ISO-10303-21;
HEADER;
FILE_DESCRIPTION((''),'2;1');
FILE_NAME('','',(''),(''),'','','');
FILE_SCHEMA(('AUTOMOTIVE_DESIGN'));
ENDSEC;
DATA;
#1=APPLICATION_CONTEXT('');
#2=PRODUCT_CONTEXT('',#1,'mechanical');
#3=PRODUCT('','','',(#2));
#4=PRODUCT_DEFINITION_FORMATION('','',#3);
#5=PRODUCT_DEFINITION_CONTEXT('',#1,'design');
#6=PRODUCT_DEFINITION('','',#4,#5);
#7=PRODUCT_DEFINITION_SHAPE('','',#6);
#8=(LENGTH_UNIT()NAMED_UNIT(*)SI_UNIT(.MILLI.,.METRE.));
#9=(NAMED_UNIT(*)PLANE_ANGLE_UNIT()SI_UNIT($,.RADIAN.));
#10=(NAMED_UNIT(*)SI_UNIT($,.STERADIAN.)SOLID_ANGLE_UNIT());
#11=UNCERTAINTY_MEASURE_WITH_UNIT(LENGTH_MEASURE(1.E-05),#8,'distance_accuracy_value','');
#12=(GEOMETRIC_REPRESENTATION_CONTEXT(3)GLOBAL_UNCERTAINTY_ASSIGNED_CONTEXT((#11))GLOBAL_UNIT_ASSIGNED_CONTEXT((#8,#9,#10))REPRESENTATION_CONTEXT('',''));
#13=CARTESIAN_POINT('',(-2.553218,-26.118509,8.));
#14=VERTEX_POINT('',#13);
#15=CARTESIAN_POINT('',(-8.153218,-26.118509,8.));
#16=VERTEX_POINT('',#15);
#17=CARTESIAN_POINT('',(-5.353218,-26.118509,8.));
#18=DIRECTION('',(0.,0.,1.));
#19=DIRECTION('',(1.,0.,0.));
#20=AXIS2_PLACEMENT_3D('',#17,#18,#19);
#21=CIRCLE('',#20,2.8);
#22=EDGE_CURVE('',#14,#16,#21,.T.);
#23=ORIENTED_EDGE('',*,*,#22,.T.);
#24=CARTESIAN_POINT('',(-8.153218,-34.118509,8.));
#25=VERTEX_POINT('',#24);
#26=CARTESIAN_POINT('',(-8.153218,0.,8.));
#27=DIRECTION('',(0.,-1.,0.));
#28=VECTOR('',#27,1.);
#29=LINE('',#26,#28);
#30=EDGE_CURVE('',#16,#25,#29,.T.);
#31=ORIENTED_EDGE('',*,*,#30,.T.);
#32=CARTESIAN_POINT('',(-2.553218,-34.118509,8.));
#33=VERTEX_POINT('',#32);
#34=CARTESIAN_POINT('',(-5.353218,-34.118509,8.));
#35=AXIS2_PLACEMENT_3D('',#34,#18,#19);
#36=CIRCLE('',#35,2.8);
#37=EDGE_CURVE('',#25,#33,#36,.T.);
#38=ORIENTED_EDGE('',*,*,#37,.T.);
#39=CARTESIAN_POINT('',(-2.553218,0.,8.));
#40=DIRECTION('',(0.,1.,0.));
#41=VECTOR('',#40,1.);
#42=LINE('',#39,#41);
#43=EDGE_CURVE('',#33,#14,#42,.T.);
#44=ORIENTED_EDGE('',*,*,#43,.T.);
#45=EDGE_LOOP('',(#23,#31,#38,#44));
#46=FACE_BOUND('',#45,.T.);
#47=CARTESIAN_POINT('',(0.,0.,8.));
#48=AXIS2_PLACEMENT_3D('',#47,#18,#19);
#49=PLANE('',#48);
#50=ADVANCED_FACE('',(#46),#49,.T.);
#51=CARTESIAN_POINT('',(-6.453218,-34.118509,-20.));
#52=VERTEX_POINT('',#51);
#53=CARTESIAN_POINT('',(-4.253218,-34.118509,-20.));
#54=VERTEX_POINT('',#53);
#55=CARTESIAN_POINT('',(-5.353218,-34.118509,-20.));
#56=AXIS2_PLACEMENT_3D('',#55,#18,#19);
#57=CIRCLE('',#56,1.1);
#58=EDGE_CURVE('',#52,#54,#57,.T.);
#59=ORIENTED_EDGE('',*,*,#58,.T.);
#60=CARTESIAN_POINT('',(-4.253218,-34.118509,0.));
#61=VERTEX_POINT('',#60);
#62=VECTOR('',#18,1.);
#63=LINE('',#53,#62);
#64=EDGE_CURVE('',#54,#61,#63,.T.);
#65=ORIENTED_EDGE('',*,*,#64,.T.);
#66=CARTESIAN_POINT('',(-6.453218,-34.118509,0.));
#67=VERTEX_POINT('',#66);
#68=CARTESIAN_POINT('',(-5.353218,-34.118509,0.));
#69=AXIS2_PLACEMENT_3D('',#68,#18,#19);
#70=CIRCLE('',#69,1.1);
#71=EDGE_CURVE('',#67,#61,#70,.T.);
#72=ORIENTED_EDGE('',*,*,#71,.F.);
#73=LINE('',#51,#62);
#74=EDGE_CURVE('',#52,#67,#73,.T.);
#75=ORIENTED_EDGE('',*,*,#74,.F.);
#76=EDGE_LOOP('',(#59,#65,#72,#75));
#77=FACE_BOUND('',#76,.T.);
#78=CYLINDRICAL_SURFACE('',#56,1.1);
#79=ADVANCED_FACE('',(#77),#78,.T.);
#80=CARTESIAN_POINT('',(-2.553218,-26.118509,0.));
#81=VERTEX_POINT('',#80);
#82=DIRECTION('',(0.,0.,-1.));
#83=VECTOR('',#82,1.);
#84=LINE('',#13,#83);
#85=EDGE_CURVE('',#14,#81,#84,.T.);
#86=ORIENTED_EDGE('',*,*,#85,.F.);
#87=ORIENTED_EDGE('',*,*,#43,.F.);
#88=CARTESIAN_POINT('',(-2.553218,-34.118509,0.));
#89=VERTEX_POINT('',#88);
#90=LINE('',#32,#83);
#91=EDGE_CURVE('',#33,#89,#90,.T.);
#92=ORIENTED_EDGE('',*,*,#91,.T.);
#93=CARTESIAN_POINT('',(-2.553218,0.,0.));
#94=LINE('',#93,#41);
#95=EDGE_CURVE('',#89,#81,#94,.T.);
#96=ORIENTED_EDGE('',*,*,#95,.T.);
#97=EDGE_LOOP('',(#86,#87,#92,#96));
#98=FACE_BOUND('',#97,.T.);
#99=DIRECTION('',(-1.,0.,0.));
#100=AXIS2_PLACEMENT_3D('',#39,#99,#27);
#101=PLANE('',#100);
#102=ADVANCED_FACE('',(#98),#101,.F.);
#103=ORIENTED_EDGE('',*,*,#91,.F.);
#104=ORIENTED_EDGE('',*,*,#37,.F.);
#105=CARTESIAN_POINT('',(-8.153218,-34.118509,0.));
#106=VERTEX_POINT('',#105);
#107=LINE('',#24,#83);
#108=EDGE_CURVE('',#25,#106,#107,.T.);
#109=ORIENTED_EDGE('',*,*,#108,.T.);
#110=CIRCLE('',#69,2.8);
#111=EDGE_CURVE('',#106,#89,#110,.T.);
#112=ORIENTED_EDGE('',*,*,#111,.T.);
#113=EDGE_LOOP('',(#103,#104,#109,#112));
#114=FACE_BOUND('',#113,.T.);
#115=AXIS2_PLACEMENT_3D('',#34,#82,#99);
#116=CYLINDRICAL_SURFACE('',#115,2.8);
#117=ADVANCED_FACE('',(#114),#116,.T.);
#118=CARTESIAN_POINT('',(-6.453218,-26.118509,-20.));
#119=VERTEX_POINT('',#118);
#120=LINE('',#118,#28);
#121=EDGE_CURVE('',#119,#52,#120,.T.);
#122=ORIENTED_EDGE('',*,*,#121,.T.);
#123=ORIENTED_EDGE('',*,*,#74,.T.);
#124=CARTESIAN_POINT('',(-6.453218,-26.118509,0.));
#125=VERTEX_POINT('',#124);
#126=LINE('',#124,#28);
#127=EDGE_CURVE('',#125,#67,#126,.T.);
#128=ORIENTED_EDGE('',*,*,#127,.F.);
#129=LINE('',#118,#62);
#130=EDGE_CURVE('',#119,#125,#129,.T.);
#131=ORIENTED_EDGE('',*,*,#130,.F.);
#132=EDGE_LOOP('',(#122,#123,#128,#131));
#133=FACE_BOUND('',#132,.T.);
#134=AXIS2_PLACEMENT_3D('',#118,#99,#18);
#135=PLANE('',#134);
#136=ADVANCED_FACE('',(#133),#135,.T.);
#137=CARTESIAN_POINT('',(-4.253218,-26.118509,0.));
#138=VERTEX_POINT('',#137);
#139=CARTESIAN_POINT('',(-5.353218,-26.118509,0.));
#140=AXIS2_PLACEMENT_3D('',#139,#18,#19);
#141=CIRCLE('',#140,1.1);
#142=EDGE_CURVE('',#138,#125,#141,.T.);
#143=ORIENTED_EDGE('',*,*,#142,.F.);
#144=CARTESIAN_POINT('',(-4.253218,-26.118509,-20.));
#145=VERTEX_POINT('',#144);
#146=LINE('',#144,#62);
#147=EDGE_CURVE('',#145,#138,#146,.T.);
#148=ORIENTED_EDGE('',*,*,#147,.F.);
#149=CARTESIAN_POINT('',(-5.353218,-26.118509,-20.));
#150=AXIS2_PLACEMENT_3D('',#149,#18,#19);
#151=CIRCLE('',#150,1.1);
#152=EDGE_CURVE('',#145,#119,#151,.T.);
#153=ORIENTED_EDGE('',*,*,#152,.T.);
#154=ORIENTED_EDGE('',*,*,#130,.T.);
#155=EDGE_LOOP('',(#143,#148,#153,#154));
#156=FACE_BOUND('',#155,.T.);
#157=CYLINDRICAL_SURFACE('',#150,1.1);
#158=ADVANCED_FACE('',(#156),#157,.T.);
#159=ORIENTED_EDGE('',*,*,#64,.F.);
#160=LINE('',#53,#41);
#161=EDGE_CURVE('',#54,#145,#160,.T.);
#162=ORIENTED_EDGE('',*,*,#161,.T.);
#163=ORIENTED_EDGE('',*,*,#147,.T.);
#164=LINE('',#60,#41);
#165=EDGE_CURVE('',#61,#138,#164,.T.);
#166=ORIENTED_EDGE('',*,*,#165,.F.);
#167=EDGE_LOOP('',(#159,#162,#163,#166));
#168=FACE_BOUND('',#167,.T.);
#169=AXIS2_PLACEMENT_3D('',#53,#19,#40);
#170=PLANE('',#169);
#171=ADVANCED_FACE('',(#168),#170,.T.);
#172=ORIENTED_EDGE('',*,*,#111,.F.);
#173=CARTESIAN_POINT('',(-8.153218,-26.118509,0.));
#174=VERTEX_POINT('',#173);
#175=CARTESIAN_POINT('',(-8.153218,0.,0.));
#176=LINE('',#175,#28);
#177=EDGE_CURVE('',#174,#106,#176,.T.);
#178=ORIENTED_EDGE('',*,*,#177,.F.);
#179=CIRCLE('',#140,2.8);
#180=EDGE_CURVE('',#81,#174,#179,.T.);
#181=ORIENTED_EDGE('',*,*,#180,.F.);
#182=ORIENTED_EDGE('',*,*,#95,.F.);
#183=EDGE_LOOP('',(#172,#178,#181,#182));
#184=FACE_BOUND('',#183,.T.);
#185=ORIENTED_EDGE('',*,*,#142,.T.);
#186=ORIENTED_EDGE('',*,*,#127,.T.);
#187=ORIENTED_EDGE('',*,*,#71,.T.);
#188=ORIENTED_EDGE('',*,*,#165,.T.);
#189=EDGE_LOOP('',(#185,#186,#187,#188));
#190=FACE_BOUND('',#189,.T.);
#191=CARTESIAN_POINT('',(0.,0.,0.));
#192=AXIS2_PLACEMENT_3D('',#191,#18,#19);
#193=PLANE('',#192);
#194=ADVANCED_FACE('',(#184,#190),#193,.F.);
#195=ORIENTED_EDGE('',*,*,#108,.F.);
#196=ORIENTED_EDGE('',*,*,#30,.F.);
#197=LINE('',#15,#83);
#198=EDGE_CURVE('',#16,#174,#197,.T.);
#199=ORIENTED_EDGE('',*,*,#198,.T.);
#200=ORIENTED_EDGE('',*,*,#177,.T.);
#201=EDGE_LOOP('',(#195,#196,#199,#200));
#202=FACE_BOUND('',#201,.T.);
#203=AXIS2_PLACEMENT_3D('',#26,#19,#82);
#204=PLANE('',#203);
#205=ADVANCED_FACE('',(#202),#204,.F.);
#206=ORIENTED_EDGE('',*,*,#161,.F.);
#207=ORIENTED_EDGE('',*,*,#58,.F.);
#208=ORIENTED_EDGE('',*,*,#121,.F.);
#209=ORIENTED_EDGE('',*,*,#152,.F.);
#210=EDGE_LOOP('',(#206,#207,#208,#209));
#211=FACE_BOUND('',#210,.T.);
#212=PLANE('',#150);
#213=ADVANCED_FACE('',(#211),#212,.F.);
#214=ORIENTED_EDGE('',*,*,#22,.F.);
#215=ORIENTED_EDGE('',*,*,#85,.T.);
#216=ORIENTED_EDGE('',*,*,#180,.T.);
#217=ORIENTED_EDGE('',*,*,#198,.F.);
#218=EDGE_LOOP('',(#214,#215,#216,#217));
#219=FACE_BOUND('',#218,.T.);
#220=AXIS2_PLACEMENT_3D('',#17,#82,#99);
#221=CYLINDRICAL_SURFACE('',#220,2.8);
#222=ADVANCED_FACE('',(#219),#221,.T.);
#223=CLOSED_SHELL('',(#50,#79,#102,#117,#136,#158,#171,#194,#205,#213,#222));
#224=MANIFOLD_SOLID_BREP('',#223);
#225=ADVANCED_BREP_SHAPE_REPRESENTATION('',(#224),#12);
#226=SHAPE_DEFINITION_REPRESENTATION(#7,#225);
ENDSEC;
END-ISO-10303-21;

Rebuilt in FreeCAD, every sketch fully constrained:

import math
import FreeCAD as App
import Part
import Sketcher
from FreeCAD import Vector
Q = App.Units.Quantity

doc = App.newDocument("Part")
body = doc.addObject("PartDesign::Body", "Body")

# Sketch on XY plane
sketch1 = body.newObject("Sketcher::SketchObject", "Sketch")
sketch1.AttachmentSupport = (doc.getObject("XY_Plane"), [""])
sketch1.MapMode = "FlatFace"
sketch1.addGeometry(Part.LineSegment(Vector(-6.5, -26.1, 0), Vector(-6.5, -34.1, 0)), False)
sketch1.addGeometry(Part.ArcOfCircle(Part.Circle(Vector(-5.4, -34.1, 0), Vector(0, 0, 1), 1.1), math.radians(180), math.radians(360)), False)
sketch1.addGeometry(Part.LineSegment(Vector(-4.3, -34.1, 0), Vector(-4.3, -26.1, 0)), False)
sketch1.addGeometry(Part.ArcOfCircle(Part.Circle(Vector(-5.4, -26.1, 0), Vector(0, 0, 1), 1.1), math.radians(0), math.radians(180)), False)
sketch1.addConstraint(Sketcher.Constraint("Tangent", 0, 2, 1, 1))
sketch1.addConstraint(Sketcher.Constraint("Tangent", 1, 2, 2, 1))
sketch1.addConstraint(Sketcher.Constraint("Tangent", 2, 2, 3, 1))
sketch1.addConstraint(Sketcher.Constraint("Tangent", 3, 2, 0, 1))
sketch1.addConstraint(Sketcher.Constraint("Vertical", 0))
sketch1.addConstraint(Sketcher.Constraint("Vertical", 2))
sketch1.addConstraint(Sketcher.Constraint("Radius", 1, Q("1.1 mm")))
sketch1.addConstraint(Sketcher.Constraint("DistanceY", 0, 2, 0, 1, Q("8 mm")))
sketch1.addConstraint(Sketcher.Constraint("DistanceX", 1, 3, -1, 1, Q("5.353218 mm")))
sketch1.addConstraint(Sketcher.Constraint("DistanceY", 1, 3, -1, 1, Q("34.118509 mm")))
pad1 = body.newObject("PartDesign::Pad", "Pad")
pad1.Profile = sketch1
pad1.Length = 20
pad1.Reversed = True

# Sketch on XY plane
sketch2 = body.newObject("Sketcher::SketchObject", "Sketch001")
sketch2.AttachmentSupport = (doc.getObject("XY_Plane"), [""])
sketch2.MapMode = "FlatFace"
sketch2.addGeometry(Part.LineSegment(Vector(-2.6, -34.1, 0), Vector(-2.6, -26.1, 0)), False)
sketch2.addGeometry(Part.ArcOfCircle(Part.Circle(Vector(-5.4, -26.1, 0), Vector(0, 0, 1), 2.8), math.radians(0), math.radians(180)), False)
sketch2.addGeometry(Part.LineSegment(Vector(-8.2, -26.1, 0), Vector(-8.2, -34.1, 0)), False)
sketch2.addGeometry(Part.ArcOfCircle(Part.Circle(Vector(-5.4, -34.1, 0), Vector(0, 0, 1), 2.8), math.radians(180), math.radians(360)), False)
sketch2.addConstraint(Sketcher.Constraint("Tangent", 0, 2, 1, 1))
sketch2.addConstraint(Sketcher.Constraint("Tangent", 1, 2, 2, 1))
sketch2.addConstraint(Sketcher.Constraint("Tangent", 2, 2, 3, 1))
sketch2.addConstraint(Sketcher.Constraint("Tangent", 3, 2, 0, 1))
sketch2.addConstraint(Sketcher.Constraint("Vertical", 0))
sketch2.addConstraint(Sketcher.Constraint("Vertical", 2))
sketch2.addConstraint(Sketcher.Constraint("Radius", 1, Q("2.8 mm")))
sketch2.addConstraint(Sketcher.Constraint("DistanceY", 0, 1, 0, 2, Q("8 mm")))
sketch2.addConstraint(Sketcher.Constraint("DistanceX", 1, 3, -1, 1, Q("5.353218 mm")))
sketch2.addConstraint(Sketcher.Constraint("DistanceY", 1, 3, -1, 1, Q("26.118509 mm")))
pad2 = body.newObject("PartDesign::Pad", "Pad001")
pad2.Profile = sketch2
pad2.Length = 8

doc.recompute()
